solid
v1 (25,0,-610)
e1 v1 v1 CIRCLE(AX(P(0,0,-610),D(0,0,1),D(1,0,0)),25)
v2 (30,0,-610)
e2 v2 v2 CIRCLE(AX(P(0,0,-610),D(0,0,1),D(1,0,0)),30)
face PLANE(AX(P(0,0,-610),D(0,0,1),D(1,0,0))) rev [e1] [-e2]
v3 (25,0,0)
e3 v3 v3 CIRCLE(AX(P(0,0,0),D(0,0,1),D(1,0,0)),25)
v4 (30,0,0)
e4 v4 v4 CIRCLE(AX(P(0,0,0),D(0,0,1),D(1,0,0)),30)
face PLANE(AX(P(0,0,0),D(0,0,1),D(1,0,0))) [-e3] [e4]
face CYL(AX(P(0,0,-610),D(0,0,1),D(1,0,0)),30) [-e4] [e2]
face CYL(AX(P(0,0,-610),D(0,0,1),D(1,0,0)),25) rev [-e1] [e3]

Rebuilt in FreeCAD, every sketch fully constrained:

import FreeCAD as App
import Part
import Sketcher
from FreeCAD import Vector
Q = App.Units.Quantity

doc = App.newDocument("Part")
body = doc.addObject("PartDesign::Body", "Body")

# Sketch on XY plane
sketch1 = body.newObject("Sketcher::SketchObject", "Sketch")
sketch1.AttachmentSupport = (doc.getObject("XY_Plane"), [""])
sketch1.MapMode = "FlatFace"
sketch1.addGeometry(Part.Circle(Vector(0, 0, 0), Vector(0, 0, 1), 30), False)
sketch1.addGeometry(Part.Circle(Vector(0, 0, 0), Vector(0, 0, 1), 25), False)
sketch1.addConstraint(Sketcher.Constraint("Coincident", 0, 3, -1, 1))
sketch1.addConstraint(Sketcher.Constraint("Coincident", 1, 3, -1, 1))
sketch1.addConstraint(Sketcher.Constraint("Diameter", 0, Q("60 mm")))
sketch1.addConstraint(Sketcher.Constraint("Diameter", 1, Q("50 mm")))
pad1 = body.newObject("PartDesign::Pad", "Pad")
pad1.Profile = sketch1
pad1.Length = 610
pad1.Reversed = True

doc.recompute()
